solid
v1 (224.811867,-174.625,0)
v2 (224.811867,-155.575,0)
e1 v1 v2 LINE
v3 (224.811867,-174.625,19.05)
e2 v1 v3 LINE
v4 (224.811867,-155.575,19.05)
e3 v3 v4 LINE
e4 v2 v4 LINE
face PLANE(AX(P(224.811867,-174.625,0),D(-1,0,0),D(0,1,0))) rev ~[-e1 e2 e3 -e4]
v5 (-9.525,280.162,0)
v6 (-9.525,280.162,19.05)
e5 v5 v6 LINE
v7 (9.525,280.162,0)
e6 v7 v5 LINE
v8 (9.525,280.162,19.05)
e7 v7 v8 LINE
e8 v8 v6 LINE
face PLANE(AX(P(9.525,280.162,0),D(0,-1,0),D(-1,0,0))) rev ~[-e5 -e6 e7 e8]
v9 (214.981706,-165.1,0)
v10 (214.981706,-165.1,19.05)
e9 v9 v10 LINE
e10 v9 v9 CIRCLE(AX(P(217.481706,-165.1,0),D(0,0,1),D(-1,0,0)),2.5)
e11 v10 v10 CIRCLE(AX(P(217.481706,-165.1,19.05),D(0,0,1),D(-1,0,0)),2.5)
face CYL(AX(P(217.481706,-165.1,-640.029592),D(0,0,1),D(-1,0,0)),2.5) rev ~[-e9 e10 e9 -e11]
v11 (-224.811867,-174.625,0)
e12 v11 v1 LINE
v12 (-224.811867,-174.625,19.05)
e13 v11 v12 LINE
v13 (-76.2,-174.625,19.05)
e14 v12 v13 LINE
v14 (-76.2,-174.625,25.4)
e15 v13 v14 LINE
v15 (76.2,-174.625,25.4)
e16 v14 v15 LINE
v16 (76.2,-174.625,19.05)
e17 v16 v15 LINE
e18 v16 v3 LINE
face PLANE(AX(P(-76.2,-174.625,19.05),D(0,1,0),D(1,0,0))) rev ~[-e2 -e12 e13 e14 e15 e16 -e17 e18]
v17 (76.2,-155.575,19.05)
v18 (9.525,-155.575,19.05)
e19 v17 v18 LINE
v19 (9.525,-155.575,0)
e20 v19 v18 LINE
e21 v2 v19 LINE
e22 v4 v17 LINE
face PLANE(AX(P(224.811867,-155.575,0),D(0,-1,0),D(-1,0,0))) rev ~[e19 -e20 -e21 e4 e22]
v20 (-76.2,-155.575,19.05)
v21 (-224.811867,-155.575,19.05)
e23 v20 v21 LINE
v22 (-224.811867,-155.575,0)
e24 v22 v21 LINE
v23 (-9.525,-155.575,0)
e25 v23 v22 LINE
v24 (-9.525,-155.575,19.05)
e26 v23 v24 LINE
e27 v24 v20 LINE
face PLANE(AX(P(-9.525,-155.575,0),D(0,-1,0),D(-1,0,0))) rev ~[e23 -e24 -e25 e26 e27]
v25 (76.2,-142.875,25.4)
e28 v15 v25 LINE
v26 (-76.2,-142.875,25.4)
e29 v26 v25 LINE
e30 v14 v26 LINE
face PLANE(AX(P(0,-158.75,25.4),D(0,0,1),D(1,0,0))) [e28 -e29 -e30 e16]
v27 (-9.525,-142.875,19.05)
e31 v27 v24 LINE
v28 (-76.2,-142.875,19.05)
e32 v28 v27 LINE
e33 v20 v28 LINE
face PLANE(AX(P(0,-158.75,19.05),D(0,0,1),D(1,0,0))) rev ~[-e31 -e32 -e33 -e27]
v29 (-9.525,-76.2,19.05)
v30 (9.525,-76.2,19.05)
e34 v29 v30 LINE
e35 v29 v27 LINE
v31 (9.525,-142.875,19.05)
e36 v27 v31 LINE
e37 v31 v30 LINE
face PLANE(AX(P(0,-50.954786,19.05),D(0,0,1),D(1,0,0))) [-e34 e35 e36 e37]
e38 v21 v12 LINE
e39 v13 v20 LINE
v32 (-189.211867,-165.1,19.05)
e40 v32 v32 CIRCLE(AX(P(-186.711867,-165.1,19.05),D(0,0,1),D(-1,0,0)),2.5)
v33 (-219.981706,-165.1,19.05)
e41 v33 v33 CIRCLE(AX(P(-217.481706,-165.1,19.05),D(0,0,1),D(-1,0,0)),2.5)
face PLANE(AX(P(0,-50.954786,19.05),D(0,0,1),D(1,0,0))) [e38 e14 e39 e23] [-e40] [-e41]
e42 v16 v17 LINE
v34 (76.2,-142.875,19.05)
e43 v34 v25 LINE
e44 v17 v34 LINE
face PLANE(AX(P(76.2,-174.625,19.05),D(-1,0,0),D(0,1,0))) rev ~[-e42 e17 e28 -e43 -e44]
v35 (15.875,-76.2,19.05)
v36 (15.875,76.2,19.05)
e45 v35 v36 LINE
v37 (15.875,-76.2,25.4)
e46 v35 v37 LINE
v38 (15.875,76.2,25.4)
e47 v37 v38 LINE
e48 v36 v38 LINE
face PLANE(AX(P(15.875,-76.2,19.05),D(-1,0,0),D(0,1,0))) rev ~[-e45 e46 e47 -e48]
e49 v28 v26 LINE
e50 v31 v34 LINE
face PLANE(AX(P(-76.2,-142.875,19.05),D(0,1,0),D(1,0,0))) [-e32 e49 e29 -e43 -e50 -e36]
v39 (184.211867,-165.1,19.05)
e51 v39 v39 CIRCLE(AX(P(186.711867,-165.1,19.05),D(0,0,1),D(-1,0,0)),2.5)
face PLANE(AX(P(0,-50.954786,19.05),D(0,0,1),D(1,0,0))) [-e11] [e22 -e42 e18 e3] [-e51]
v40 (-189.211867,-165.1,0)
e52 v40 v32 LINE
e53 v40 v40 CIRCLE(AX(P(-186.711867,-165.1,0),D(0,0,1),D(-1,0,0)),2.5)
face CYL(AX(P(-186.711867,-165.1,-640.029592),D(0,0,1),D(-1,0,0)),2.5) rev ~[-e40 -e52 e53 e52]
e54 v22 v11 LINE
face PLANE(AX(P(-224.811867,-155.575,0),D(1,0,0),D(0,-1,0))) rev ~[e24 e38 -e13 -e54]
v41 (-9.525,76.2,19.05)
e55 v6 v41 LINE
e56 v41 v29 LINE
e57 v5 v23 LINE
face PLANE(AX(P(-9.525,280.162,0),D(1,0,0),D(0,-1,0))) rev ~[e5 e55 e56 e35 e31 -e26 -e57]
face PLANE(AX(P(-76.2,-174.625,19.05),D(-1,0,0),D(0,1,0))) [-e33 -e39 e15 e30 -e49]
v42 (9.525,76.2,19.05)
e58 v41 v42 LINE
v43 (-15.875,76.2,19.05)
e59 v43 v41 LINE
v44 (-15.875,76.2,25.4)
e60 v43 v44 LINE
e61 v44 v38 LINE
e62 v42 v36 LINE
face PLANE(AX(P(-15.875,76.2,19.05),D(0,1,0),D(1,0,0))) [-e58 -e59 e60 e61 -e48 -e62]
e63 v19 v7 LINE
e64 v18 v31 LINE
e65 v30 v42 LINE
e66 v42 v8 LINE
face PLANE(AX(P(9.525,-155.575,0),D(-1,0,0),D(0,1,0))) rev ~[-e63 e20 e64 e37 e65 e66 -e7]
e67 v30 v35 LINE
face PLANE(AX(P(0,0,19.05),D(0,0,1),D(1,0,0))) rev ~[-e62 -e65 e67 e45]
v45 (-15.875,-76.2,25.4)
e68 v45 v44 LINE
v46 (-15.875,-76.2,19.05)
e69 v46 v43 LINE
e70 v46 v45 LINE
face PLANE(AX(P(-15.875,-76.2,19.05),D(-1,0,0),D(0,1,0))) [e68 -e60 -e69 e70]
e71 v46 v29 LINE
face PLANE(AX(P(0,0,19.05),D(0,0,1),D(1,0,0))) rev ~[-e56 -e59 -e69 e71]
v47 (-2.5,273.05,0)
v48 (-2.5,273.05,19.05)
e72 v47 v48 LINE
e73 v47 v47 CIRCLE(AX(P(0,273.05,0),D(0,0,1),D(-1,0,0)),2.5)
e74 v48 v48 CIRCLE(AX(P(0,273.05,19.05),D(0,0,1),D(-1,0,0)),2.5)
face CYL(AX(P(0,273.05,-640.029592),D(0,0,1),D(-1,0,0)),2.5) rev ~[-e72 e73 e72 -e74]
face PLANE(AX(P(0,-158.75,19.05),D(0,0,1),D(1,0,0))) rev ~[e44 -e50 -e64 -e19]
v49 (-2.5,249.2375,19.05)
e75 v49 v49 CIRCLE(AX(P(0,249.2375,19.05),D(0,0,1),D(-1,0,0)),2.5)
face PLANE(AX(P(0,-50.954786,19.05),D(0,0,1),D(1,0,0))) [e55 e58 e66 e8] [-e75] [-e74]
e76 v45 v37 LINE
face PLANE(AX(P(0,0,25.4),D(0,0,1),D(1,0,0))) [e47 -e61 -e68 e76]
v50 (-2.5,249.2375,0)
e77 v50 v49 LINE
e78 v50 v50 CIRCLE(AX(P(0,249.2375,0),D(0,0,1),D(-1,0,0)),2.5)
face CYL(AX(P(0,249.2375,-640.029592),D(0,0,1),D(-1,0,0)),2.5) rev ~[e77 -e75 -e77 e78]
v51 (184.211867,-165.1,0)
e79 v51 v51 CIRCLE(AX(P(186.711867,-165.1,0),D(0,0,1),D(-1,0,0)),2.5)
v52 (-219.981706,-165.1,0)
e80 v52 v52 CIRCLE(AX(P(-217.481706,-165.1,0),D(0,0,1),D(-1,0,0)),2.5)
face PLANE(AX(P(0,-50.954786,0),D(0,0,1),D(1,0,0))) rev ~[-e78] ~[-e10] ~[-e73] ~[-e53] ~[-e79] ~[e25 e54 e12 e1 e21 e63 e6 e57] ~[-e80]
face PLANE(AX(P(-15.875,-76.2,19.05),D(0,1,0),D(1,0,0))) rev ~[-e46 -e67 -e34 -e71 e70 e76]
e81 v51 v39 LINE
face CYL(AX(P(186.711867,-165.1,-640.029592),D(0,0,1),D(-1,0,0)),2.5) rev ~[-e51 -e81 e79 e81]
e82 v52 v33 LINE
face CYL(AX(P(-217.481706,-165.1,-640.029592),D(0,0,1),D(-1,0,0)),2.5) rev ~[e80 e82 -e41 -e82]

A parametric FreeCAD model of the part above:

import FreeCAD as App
import Part
import Sketcher
Q = App.Units.Quantity


def add_polygon(sketch, points):
    """Adds a closed chain of lines whose ends are joined by coincident constraints."""
    first, n = sketch.GeometryCount, len(points)
    for a, b in zip(points, points[1:] + points[:1]):
        sketch.addGeometry(Part.LineSegment(App.Vector(*a, 0), App.Vector(*b, 0)), False)
    for i in range(n):
        sketch.addConstraint(Sketcher.Constraint("Coincident", first + i, 2, first + (i + 1) % n, 1))

doc = App.newDocument("Part")
params = doc.addObject("Spreadsheet::Sheet", "Params")
for row, (alias, value) in enumerate([
    ("sketch1_width", "0.75 in"),
    ("sketch1_height", "17.155 in"),
    ("pad1_length", "0.75 in"),
    ("sketch2_width", "6 in"),
    ("sketch2_width2", "1.25 in"),
    ("pad2_length", "0.25 in"),
    ("hole_diameter", "5 mm"),
], start=1):
    params.set(f"A{row}", alias)
    params.set(f"B{row}", "=" + value)
    params.setAlias(f"B{row}", alias)

body = doc.addObject("PartDesign::Body", "Body")

sketch1 = body.newObject("Sketcher::SketchObject", "Sketch")
sketch1.AttachmentSupport = (doc.getObject("XY_Plane"), [""])
sketch1.MapMode = "FlatFace"
add_polygon(sketch1, [(-10, -156), (-225, -156), (-225, -175), (225, -175), (225, -156), (10, -156), (10, 280), (-10, 280)])
sketch1.addConstraint([
    Sketcher.Constraint("Horizontal", 0),
    Sketcher.Constraint("Vertical", 1),
    Sketcher.Constraint("Horizontal", 2),
    Sketcher.Constraint("Vertical", 3),
    Sketcher.Constraint("Horizontal", 4),
    Sketcher.Constraint("Vertical", 5),
    Sketcher.Constraint("Horizontal", 6),
    Sketcher.Constraint("Vertical", 7),
    Sketcher.Constraint("Symmetric", 0, 2, 3, 2, -2),
    Sketcher.Constraint("Equal", 0, 4),
    Sketcher.Constraint("Equal", 6, 1),
    Sketcher.Constraint("DistanceX", 6, 2, 6, 1, Q("0.75 in")),
    Sketcher.Constraint("DistanceY", 5, 1, 5, 2, Q("17.155 in")),
    Sketcher.Constraint("DistanceY", -1, 1, 5, 2, Q("11.03 in")),
    Sketcher.Constraint("DistanceX", 0, 2, 0, 1, 215.286867),
])
sketch1.setExpression("Constraints[19]", "Params.sketch1_width")
sketch1.setExpression("Constraints[20]", "Params.sketch1_height")
pad1 = body.newObject("PartDesign::Pad", "Pad")
pad1.Profile = sketch1
pad1.setExpression("Length", "Params.pad1_length")

sketch2 = body.newObject("Sketcher::SketchObject", "Sketch001")
sketch2.AttachmentSupport = (doc.getObject("XY_Plane"), [""])
sketch2.MapMode = "FlatFace"
sketch2.AttachmentOffset = App.Placement(App.Vector(0, 0, 0.75 * 25.4), App.Rotation())
add_polygon(sketch2, [(-76, -143), (-76, -175), (76, -175), (76, -143)])
add_polygon(sketch2, [(-16, 76), (-16, -76), (16, -76), (16, 76)])
sketch2.addConstraint([
    Sketcher.Constraint("Vertical", 0),
    Sketcher.Constraint("Horizontal", 1),
    Sketcher.Constraint("Vertical", 2),
    Sketcher.Constraint("Horizontal", 3),
    Sketcher.Constraint("Vertical", 4),
    Sketcher.Constraint("Horizontal", 5),
    Sketcher.Constraint("Vertical", 6),
    Sketcher.Constraint("Horizontal", 7),
    Sketcher.Constraint("Symmetric", 4, 2, 6, 2, -1, 1),
    Sketcher.Constraint("Equal", 7, 0),
    Sketcher.Constraint("Equal", 3, 4),
    Sketcher.Constraint("DistanceX", 1, 1, 1, 2, Q("6 in")),
    Sketcher.Constraint("DistanceX", 0, 2, -1, 1, Q("3 in")),
    Sketcher.Constraint("DistanceX", 5, 1, 5, 2, Q("1.25 in")),
    Sketcher.Constraint("DistanceY", 0, 2, -1, 1, Q("6.875 in")),
])
sketch2.setExpression("Constraints[19]", "Params.sketch2_width")
sketch2.setExpression("Constraints[21]", "Params.sketch2_width2")
pad2 = body.newObject("PartDesign::Pad", "Pad001")
pad2.Profile = sketch2
pad2.setExpression("Length", "Params.pad2_length")

sketch3 = body.newObject("Sketcher::SketchObject", "Sketch002")
sketch3.AttachmentSupport = (doc.getObject("XY_Plane"), [""])
sketch3.MapMode = "FlatFace"
sketch3.addGeometry([
    Part.Circle(App.Vector(186.7, -165.1, 0), App.Vector(0, 0, 1), 2.5),
    Part.Circle(App.Vector(0, 249.2, 0), App.Vector(0, 0, 1), 2.5),
    Part.Circle(App.Vector(-186.7, -165.1, 0), App.Vector(0, 0, 1), 2.5),
    Part.Circle(App.Vector(-217.5, -165.1, 0), App.Vector(0, 0, 1), 2.5),
    Part.Circle(App.Vector(217.5, -165.1, 0), App.Vector(0, 0, 1), 2.5),
    Part.Circle(App.Vector(0, 273.1, 0), App.Vector(0, 0, 1), 2.5),
], False)
sketch3.addConstraint([
    Sketcher.Constraint("Equal", 0, 1),
    Sketcher.Constraint("Equal", 1, 2),
    Sketcher.Constraint("Equal", 2, 3),
    Sketcher.Constraint("Equal", 3, 4),
    Sketcher.Constraint("Equal", 4, 5),
    Sketcher.Constraint("Symmetric", 0, 3, 2, 3, -2),
    Sketcher.Constraint("Symmetric", 3, 3, 4, 3, -2),
    Sketcher.Constraint("PointOnObject", 1, 3, -2),
    Sketcher.Constraint("PointOnObject", 5, 3, -2),
    Sketcher.Constraint("Horizontal", 2, 3, 3, 3),
    Sketcher.Constraint("DistanceY", 0, 3, -1, 1, Q("6.5 in")),
    Sketcher.Constraint("Diameter", 0, 5.0),
    Sketcher.Constraint("DistanceY", -1, 1, 5, 3, Q("10.75 in")),
    Sketcher.Constraint("DistanceY", -1, 1, 1, 3, Q("9.8125 in")),
    Sketcher.Constraint("DistanceX", 3, 3, 2, 3, 30.769839),
    Sketcher.Constraint("DistanceX", -1, 1, 0, 3, 186.711867),
])
doc.recompute()
hole = body.newObject("PartDesign::Hole", "Hole")
hole.Profile = sketch3
hole.ThreadType = "None"
hole.setExpression("Diameter", "Params.hole_diameter")
hole.DepthType = "ThroughAll"
hole.Reversed = True

doc.recompute()
